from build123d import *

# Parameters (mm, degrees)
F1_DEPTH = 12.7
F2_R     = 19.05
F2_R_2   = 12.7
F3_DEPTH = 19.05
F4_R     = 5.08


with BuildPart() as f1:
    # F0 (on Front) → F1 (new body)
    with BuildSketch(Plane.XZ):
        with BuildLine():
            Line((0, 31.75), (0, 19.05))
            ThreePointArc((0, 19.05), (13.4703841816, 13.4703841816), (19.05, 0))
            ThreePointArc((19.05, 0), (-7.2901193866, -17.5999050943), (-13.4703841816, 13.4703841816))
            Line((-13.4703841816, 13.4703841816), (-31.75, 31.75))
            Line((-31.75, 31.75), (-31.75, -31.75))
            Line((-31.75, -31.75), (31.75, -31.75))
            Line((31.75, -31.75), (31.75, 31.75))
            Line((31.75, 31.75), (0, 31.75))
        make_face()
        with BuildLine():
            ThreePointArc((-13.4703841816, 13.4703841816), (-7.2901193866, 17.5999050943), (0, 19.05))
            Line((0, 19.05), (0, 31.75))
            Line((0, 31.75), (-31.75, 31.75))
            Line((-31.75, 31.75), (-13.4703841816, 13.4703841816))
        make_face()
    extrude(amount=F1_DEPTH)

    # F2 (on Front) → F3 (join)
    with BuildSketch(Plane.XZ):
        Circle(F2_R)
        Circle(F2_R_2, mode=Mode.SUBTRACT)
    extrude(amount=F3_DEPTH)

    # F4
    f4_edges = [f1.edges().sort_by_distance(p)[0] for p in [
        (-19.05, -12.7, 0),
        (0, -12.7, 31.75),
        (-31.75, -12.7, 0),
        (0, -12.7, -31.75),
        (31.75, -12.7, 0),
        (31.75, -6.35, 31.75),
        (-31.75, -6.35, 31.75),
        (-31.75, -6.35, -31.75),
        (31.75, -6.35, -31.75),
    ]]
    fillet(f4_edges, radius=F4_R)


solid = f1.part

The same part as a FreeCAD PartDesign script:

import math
import FreeCAD as App
import Part
import Sketcher

V = App.Vector
Q = App.Units.Quantity


def edges_at(feature, points):
    """Names of the edges that pass closest to the given points."""
    edges = feature.Shape.Edges
    near = lambda p: min(range(len(edges)), key=lambda i: edges[i].distToShape(Part.Vertex(*p))[0])
    return sorted({f"Edge{near(p) + 1}" for p in points})

doc = App.newDocument("Part")
body = doc.addObject("PartDesign::Body", "Body")

sketch1 = doc.addObject("Sketcher::SketchObject", "Sketch")
body.addObject(sketch1)
sketch1.AttachmentSupport = (doc.XZ_Plane, [""])
sketch1.MapMode = "FlatFace"
sketch1.addGeometry([
    Part.LineSegment(V(-32, 32, 0), V(-32, -32, 0)),
    Part.LineSegment(V(-32, -32, 0), V(32, -32, 0)),
    Part.LineSegment(V(32, -32, 0), V(32, 32, 0)),
    Part.LineSegment(V(32, 32, 0), V(-32, 32, 0)),
    Part.ArcOfCircle(Part.Circle(V(0, 0, 0), V(0, 0, 1), 19), math.radians(0), math.radians(90)),
    Part.ArcOfCircle(Part.Circle(V(0, 0, 0), V(0, 0, 1), 19), math.radians(135), math.radians(360)),
    Part.ArcOfCircle(Part.Circle(V(0, 0, 0), V(0, 0, 1), 19), math.radians(90), math.radians(135)),
], False)
sketch1.addConstraint([
    Sketcher.Constraint("Coincident", 0, 2, 1, 1),
    Sketcher.Constraint("Coincident", 1, 2, 2, 1),
    Sketcher.Constraint("Coincident", 2, 2, 3, 1),
    Sketcher.Constraint("Coincident", 3, 2, 0, 1),
    Sketcher.Constraint("Tangent", 4, 1, 5, 2),
    Sketcher.Constraint("Tangent", 5, 1, 6, 2),
    Sketcher.Constraint("Tangent", 6, 1, 4, 2),
    Sketcher.Constraint("Vertical", 0),
    Sketcher.Constraint("Horizontal", 1),
    Sketcher.Constraint("Vertical", 2),
    Sketcher.Constraint("Horizontal", 3),
    Sketcher.Constraint("Coincident", 4, 3, -1, 1),
    Sketcher.Constraint("Symmetric", 0, 2, 2, 2, -1, 1),
    Sketcher.Constraint("PointOnObject", 4, 1, -1),
    Sketcher.Constraint("PointOnObject", 6, 1, -2),
    Sketcher.Constraint("Equal", 3, 0),
    Sketcher.Constraint("Radius", 4, Q("0.75 in")),
    Sketcher.Constraint("DistanceX", 1, 1, 1, 2, Q("2.5 in")),
    Sketcher.Constraint("DistanceX", 5, 1, -1, 1, 13.470384),
])
pad1 = doc.addObject("PartDesign::Pad", "Pad")
body.addObject(pad1)
pad1.Profile = sketch1
pad1.Length = Q("0.5 in")

sketch2 = doc.addObject("Sketcher::SketchObject", "Sketch001")
body.addObject(sketch2)
sketch2.AttachmentSupport = (doc.XZ_Plane, [""])
sketch2.MapMode = "FlatFace"
sketch2.addGeometry([
    Part.Circle(V(0, 0, 0), V(0, 0, 1), 19),
    Part.Circle(V(0, 0, 0), V(0, 0, 1), 13),
], False)
sketch2.addConstraint([
    Sketcher.Constraint("Coincident", 0, 3, -1, 1),
    Sketcher.Constraint("Coincident", 1, 3, -1, 1),
    Sketcher.Constraint("Diameter", 1, Q("1 in")),
    Sketcher.Constraint("Diameter", 0, Q("1.5 in")),
])
pad2 = doc.addObject("PartDesign::Pad", "Pad001")
body.addObject(pad2)
pad2.Profile = sketch2
pad2.Length = Q("0.75 in")
doc.recompute()

fillet = doc.addObject("PartDesign::Fillet", "Fillet")
body.addObject(fillet)
fillet.Base = (pad2, edges_at(pad2, [
    (-7.29, -12.7, -17.6),
    (0, -12.7, 31.75),
    (-31.75, -12.7, 0),
    (0, -12.7, -31.75),
    (31.75, -12.7, 0),
    (31.75, -6.35, 31.75),
    (-31.75, -6.35, 31.75),
    (-31.75, -6.35, -31.75),
    (31.75, -6.35, -31.75),
]))
fillet.Radius = Q("0.2 in")

doc.recompute()
